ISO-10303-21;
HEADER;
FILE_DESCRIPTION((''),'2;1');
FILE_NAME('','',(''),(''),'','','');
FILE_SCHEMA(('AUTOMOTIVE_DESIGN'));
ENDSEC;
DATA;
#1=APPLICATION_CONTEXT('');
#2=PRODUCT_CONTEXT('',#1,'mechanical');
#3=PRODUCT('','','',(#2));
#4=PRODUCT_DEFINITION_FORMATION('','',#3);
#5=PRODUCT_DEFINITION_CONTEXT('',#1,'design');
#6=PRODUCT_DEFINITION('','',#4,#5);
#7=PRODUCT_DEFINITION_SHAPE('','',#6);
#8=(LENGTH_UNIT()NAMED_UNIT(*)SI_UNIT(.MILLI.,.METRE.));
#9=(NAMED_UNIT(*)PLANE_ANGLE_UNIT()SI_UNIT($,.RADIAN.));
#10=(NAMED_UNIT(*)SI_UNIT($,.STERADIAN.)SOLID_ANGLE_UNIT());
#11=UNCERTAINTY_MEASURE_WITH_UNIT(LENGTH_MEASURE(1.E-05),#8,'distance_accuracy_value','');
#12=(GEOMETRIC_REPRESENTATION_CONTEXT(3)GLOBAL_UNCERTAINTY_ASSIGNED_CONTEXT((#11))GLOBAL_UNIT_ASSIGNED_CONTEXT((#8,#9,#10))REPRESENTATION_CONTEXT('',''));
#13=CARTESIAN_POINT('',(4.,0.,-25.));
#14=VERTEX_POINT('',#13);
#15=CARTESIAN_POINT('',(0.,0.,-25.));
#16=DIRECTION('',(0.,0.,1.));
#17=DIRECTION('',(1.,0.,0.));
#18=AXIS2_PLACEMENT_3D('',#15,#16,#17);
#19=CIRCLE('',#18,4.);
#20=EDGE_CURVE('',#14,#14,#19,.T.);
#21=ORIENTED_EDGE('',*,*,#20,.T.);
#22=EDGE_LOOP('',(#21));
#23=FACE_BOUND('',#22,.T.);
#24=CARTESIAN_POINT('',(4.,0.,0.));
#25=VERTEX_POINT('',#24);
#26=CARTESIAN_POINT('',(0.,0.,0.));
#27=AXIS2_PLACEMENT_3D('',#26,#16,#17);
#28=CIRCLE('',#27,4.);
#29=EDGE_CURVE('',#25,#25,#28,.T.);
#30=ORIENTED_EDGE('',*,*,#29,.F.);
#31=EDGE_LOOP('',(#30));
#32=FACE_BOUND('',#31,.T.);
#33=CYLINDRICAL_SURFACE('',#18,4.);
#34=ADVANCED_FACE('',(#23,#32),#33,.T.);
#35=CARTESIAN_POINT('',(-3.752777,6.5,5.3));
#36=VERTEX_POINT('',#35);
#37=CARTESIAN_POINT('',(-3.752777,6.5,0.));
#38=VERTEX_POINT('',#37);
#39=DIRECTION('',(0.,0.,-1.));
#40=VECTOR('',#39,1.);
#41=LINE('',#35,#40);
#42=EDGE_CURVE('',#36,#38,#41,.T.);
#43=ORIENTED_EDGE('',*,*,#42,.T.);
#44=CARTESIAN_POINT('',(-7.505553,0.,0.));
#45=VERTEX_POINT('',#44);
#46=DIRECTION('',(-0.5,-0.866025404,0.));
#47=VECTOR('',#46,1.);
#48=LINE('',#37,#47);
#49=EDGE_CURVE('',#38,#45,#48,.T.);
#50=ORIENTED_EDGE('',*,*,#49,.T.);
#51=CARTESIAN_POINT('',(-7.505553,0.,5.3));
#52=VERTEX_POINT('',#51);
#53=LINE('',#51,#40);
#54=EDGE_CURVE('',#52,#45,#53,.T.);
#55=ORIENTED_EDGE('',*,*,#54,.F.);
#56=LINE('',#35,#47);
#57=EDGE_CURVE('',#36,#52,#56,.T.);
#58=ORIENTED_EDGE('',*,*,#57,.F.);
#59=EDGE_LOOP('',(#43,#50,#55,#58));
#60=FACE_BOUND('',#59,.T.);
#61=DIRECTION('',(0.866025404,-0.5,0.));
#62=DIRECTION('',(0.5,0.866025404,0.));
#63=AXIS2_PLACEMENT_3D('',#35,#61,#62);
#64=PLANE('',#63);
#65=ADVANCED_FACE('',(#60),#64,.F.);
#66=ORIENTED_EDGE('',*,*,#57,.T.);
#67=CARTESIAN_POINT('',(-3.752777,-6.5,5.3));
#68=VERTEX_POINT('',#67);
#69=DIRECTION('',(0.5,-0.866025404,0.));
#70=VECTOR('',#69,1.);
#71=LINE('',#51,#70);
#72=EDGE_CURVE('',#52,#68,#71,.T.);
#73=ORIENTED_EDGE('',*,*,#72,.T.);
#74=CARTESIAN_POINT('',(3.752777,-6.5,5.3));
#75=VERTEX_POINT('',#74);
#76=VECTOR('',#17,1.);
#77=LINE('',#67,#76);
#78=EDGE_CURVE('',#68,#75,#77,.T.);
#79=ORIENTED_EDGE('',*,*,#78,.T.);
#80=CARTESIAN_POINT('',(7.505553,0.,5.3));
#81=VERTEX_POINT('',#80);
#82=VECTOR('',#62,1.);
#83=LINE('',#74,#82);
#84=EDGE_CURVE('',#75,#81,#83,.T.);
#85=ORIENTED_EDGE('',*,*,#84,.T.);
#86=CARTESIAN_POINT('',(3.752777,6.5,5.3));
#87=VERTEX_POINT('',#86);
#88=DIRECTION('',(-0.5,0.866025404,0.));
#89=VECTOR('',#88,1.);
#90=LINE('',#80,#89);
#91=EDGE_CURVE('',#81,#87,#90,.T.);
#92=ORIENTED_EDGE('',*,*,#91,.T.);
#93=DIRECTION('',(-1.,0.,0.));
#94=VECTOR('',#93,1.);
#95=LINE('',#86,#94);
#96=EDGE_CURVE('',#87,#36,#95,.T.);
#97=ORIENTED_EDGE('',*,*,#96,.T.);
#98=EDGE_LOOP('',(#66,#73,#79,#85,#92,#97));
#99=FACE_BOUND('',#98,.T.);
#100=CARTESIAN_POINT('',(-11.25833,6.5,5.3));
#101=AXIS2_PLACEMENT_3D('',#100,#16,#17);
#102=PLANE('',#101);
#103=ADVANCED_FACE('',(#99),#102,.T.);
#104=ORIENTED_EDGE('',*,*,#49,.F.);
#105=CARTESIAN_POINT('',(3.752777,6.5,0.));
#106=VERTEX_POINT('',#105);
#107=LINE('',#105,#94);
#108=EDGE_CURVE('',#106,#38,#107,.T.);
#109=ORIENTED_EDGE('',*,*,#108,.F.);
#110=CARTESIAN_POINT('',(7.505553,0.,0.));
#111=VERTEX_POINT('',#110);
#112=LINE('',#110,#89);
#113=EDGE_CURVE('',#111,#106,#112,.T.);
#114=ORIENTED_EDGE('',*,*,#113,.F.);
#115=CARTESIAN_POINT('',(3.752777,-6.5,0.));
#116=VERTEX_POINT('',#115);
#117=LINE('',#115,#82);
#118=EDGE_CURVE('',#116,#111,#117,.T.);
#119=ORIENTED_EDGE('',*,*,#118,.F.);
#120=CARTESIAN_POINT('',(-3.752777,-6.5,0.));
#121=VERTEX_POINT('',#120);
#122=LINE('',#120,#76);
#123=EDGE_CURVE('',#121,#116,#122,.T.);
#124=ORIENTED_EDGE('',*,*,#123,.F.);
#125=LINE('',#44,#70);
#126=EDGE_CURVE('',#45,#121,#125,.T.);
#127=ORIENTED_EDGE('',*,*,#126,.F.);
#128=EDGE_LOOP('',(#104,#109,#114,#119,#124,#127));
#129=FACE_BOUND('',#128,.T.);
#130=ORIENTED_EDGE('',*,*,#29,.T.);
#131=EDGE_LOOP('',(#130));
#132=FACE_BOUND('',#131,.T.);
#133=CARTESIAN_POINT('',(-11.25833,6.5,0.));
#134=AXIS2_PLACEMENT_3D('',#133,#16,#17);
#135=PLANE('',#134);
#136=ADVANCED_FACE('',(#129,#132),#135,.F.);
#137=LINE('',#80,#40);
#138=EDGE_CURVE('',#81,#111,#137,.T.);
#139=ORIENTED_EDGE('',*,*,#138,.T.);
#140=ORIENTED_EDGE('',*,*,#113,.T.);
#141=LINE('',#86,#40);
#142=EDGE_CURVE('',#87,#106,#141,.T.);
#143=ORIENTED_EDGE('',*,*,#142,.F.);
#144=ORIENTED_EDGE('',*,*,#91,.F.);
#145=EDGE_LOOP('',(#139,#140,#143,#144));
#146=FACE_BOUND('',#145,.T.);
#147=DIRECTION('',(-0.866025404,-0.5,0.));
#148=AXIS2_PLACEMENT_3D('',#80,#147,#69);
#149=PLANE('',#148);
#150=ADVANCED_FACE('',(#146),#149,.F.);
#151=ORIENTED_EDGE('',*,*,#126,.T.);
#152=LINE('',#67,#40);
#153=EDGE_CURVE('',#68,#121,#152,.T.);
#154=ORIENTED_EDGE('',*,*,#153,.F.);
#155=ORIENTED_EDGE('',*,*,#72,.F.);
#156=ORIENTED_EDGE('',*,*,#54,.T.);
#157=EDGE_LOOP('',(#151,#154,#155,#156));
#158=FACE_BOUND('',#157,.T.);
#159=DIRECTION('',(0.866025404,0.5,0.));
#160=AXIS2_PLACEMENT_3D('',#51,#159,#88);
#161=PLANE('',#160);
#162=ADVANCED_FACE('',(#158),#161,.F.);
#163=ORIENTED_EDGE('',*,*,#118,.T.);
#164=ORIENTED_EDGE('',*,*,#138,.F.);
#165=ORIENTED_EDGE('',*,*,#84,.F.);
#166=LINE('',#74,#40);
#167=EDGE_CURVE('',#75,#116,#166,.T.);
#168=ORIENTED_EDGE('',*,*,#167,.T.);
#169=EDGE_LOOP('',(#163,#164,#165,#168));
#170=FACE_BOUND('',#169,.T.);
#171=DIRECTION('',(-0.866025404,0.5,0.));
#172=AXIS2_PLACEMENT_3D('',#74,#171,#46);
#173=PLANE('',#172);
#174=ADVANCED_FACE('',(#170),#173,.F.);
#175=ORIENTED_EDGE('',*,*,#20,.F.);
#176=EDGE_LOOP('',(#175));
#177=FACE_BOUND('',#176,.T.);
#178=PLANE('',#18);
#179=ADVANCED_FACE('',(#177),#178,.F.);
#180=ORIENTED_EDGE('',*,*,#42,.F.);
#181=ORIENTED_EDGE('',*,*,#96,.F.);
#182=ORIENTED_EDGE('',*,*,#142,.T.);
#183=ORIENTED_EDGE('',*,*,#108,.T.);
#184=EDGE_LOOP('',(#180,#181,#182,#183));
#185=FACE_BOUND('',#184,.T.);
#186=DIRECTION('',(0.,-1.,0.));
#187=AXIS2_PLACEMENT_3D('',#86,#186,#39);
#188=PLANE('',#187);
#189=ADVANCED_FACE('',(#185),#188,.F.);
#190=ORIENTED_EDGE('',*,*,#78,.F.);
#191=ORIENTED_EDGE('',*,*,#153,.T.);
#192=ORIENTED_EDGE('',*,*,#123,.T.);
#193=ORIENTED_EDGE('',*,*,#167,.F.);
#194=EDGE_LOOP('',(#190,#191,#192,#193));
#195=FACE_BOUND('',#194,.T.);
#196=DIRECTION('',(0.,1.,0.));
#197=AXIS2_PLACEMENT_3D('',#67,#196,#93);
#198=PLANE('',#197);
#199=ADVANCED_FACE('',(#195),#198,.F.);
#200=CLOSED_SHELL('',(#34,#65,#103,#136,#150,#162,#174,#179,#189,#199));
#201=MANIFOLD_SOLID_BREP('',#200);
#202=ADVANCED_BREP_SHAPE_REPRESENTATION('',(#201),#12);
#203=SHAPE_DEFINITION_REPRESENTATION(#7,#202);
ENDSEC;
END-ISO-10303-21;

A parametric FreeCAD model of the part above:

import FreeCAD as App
import Part
import Sketcher
Q = App.Units.Quantity

doc = App.newDocument("Part")
body = doc.addObject("PartDesign::Body", "Body")

sketch1 = body.newObject("Sketcher::SketchObject", "Sketch")
sketch1.AttachmentSupport = (doc.getObject("XY_Plane"), [""])
sketch1.MapMode = "FlatFace"
sketch1.addGeometry(Part.Circle(App.Vector(0, 0, 0), App.Vector(0, 0, 1), 4), False)
sketch1.addConstraint([
    Sketcher.Constraint("Coincident", 0, 3, -1, 1),
    Sketcher.Constraint("Diameter", 0, Q("8 mm")),
])
pad1 = body.newObject("PartDesign::Pad", "Pad")
pad1.Profile = sketch1
pad1.Length = 25
pad1.Reversed = True

sketch2 = body.newObject("Sketcher::SketchObject", "Sketch001")
sketch2.AttachmentSupport = (doc.getObject("XY_Plane"), [""])
sketch2.MapMode = "FlatFace"
sketch2.addGeometry([
    Part.LineSegment(App.Vector(-4, 6, 0), App.Vector(-8, 0, 0)),
    Part.LineSegment(App.Vector(-8, 0, 0), App.Vector(-4, -6, 0)),
    Part.LineSegment(App.Vector(-4, -6, 0), App.Vector(4, -6, 0)),
    Part.LineSegment(App.Vector(4, -6, 0), App.Vector(8, 0, 0)),
    Part.LineSegment(App.Vector(8, 0, 0), App.Vector(4, 6, 0)),
    Part.LineSegment(App.Vector(4, 6, 0), App.Vector(-4, 6, 0)),
], False)
sketch2.addConstraint([
    Sketcher.Constraint("Coincident", 0, 2, 1, 1),
    Sketcher.Constraint("Coincident", 1, 2, 2, 1),
    Sketcher.Constraint("Coincident", 2, 2, 3, 1),
    Sketcher.Constraint("Coincident", 3, 2, 4, 1),
    Sketcher.Constraint("Coincident", 4, 2, 5, 1),
    Sketcher.Constraint("Coincident", 5, 2, 0, 1),
    Sketcher.Constraint("Horizontal", 2),
    Sketcher.Constraint("Horizontal", 5),
    Sketcher.Constraint("Symmetric", 0, 2, 3, 2, -1, 1),
    Sketcher.Constraint("Symmetric", 1, 2, 4, 2, -1, 1),
    Sketcher.Constraint("PointOnObject", 0, 2, -1),
    Sketcher.Constraint("Parallel", 0, 3),
    Sketcher.Constraint("Vertical", 2, 2, 4, 2),
    Sketcher.Constraint("Angle", 0, Q("-120 deg")),
    Sketcher.Constraint("DistanceY", 2, 2, 4, 2, Q("13 mm")),
    Sketcher.Constraint("DistanceX", 2, 1, 2, 2, Q("7.505554 mm")),
])
pad2 = body.newObject("PartDesign::Pad", "Pad001")
pad2.Profile = sketch2
pad2.Length = 5.3

doc.recompute()
